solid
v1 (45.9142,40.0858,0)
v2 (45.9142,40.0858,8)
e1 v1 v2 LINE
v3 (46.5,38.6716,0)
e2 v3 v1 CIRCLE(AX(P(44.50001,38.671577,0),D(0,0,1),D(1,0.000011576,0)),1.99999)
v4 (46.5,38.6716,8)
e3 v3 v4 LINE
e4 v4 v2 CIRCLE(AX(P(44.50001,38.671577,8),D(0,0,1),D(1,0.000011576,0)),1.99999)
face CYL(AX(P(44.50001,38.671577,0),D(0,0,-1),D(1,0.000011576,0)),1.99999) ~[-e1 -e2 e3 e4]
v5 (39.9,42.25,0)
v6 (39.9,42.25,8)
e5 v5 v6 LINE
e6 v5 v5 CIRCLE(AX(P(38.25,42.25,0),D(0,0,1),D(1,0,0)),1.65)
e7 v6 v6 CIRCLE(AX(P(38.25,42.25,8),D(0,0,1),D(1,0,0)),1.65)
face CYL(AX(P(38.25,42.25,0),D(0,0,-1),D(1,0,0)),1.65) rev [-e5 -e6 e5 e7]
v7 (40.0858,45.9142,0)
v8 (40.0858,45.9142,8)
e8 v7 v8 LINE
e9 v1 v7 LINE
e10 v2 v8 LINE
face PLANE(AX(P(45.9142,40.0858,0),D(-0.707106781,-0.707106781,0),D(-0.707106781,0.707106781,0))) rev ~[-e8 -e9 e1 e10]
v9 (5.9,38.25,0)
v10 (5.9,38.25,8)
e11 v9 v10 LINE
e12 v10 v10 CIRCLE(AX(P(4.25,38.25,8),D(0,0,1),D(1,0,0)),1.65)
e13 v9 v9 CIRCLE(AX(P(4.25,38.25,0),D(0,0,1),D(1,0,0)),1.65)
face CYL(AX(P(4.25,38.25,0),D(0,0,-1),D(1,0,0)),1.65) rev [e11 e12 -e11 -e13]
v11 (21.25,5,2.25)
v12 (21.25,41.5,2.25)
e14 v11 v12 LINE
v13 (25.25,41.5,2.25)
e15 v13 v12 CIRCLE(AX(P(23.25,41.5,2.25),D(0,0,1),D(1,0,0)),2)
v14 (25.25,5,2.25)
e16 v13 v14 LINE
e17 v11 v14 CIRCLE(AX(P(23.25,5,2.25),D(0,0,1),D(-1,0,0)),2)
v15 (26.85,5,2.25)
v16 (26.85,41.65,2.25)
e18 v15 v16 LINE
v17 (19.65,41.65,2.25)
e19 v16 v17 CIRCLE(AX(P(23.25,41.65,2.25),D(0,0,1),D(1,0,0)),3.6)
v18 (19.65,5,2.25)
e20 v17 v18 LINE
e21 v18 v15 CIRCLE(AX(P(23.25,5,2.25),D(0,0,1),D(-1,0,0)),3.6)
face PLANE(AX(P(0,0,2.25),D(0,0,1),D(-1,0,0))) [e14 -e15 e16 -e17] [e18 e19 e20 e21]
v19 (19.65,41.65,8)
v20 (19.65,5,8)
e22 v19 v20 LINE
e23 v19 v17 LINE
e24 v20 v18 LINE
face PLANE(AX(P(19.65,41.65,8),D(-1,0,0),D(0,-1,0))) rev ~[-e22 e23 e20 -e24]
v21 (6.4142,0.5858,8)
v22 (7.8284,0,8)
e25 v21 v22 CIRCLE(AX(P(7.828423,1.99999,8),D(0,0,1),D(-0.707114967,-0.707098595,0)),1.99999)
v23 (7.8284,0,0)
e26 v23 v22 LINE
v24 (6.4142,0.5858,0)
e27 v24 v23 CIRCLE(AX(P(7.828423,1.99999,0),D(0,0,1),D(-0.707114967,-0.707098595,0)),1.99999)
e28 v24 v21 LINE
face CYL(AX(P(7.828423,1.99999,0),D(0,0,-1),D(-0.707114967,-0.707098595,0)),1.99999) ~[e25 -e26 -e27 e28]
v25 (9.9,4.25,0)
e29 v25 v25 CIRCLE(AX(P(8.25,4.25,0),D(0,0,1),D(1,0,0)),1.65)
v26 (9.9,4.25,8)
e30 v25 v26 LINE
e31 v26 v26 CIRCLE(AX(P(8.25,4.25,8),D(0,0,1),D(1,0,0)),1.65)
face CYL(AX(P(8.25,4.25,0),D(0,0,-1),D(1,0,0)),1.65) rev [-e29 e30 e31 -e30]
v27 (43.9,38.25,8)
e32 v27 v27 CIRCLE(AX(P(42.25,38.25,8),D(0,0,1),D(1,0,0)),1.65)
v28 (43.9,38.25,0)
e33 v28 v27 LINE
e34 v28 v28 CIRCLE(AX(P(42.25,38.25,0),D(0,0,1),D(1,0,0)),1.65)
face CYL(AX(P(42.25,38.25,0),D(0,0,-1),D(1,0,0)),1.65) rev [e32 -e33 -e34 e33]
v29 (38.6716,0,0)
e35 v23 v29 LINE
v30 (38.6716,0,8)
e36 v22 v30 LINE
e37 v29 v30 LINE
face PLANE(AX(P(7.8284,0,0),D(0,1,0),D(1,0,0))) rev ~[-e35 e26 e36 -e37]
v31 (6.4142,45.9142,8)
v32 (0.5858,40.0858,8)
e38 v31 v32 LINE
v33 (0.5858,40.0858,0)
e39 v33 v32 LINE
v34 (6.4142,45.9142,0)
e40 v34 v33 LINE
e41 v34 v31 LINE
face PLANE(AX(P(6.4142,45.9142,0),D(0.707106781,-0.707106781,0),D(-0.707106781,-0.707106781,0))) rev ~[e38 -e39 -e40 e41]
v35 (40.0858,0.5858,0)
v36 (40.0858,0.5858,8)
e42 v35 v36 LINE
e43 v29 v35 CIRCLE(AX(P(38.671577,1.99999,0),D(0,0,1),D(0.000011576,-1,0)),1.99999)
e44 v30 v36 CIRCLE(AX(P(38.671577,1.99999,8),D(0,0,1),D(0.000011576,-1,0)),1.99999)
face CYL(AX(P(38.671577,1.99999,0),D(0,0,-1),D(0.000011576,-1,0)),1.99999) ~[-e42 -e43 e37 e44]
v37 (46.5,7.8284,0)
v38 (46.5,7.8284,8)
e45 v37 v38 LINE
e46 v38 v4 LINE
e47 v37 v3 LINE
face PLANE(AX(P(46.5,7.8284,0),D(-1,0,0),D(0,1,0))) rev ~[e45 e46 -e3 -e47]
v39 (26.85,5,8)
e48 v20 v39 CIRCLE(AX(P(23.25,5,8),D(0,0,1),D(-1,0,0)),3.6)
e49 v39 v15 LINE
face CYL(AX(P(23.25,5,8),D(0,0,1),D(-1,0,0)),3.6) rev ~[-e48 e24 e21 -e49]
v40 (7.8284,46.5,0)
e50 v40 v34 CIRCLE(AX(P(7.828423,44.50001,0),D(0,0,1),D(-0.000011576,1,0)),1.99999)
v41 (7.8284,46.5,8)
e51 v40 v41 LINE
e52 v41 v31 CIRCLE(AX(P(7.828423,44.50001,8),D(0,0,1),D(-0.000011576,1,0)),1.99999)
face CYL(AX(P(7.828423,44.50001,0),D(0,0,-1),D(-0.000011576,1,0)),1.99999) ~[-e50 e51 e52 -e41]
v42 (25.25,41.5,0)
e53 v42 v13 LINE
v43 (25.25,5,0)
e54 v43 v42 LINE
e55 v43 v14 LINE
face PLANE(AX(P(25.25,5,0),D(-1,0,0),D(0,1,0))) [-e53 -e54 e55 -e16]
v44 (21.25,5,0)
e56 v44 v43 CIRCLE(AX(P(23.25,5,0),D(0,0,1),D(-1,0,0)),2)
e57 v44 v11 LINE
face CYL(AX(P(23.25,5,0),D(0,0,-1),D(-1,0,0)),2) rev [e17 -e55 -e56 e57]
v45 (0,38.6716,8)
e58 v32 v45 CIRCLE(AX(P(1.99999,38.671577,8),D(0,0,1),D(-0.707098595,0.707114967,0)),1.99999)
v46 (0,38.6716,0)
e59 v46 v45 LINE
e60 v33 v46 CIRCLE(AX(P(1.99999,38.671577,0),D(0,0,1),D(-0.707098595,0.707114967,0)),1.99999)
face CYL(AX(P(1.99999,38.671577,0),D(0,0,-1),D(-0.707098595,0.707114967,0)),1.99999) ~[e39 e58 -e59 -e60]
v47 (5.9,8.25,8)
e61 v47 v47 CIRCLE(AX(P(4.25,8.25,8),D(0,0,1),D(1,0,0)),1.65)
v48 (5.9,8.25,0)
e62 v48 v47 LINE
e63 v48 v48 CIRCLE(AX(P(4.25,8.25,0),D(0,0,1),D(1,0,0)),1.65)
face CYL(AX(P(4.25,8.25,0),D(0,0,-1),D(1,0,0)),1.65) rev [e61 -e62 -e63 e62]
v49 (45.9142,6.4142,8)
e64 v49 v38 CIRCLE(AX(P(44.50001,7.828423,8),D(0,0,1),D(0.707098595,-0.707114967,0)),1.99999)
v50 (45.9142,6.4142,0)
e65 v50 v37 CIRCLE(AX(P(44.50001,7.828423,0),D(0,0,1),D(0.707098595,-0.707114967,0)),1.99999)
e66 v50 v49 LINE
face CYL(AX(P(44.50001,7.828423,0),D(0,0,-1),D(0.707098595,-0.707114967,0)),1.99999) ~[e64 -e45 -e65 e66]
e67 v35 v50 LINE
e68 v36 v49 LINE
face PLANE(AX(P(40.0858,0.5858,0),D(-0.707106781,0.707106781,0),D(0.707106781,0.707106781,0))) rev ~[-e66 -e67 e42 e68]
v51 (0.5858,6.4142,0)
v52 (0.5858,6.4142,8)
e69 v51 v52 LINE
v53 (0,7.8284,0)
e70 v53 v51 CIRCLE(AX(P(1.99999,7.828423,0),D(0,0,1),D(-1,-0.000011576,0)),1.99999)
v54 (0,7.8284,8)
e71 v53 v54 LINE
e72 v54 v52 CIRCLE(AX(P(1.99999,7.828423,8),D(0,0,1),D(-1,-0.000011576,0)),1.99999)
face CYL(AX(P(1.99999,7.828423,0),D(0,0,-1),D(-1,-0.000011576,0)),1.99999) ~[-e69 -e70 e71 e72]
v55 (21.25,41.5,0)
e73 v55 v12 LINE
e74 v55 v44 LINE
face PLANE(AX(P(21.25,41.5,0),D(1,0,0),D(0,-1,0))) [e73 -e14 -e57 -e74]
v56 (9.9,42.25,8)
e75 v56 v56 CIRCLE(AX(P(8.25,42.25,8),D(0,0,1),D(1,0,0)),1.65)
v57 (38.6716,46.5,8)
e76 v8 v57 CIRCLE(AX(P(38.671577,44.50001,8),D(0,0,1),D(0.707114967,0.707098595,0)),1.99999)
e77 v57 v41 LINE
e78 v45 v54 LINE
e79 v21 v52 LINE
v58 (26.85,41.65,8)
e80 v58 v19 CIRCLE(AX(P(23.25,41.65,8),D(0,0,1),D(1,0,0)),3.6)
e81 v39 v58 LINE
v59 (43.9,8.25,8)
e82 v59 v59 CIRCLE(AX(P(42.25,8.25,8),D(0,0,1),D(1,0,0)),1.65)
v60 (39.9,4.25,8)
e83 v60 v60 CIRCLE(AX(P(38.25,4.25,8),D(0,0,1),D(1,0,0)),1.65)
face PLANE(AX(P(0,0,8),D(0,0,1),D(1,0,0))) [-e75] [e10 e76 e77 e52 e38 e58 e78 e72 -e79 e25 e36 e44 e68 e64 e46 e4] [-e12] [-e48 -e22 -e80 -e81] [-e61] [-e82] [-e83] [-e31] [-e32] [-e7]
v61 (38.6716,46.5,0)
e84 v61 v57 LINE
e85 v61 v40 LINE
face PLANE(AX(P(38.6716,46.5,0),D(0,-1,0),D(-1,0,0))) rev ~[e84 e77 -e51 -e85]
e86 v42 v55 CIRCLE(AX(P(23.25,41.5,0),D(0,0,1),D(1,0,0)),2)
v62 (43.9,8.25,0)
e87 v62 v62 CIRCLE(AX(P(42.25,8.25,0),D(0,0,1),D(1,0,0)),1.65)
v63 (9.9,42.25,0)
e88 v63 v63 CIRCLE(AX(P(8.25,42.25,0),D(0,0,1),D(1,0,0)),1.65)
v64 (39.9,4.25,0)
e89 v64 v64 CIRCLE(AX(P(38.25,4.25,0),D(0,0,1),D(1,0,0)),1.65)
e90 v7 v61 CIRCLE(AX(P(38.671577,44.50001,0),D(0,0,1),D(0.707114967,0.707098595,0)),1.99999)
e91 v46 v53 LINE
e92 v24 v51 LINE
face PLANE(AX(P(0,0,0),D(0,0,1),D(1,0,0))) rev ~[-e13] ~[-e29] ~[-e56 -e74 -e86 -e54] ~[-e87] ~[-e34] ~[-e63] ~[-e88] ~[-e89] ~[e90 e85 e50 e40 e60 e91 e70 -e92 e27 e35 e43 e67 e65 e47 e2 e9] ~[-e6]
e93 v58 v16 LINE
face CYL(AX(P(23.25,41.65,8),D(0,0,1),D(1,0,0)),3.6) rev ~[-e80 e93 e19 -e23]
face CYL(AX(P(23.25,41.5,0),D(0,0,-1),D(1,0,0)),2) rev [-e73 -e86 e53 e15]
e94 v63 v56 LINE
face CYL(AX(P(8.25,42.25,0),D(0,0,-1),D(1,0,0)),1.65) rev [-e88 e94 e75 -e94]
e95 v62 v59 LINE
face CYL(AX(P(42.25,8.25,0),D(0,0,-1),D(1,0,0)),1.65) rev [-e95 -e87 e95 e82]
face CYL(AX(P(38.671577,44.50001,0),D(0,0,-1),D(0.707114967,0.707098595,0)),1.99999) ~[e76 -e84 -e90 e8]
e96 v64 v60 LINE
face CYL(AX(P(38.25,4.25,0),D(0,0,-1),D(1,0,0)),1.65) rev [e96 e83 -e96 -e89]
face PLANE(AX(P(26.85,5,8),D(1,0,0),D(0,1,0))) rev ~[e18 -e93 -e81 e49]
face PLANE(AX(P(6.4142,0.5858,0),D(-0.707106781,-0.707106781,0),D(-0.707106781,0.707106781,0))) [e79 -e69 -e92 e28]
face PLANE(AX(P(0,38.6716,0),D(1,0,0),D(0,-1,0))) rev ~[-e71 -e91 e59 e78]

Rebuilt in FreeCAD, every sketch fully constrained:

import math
import FreeCAD as App
import Part
import Sketcher
from FreeCAD import Vector

doc = App.newDocument("Part")
body = doc.addObject("PartDesign::Body", "Body")

sketch1 = body.newObject("Sketcher::SketchObject", "Sketch")
sketch1.AttachmentSupport = (doc.getObject("XY_Plane"), [""])
sketch1.MapMode = "FlatFace"
sketch1.addGeometry(Part.ArcOfCircle(Part.Circle(Vector(7.8, 2, 0), Vector(0, 0, 1), 2), math.radians(-135), math.radians(-90)), False)
sketch1.addGeometry(Part.LineSegment(Vector(7.8, 0, 0), Vector(38.7, 0, 0)), False)
sketch1.addGeometry(Part.ArcOfCircle(Part.Circle(Vector(38.7, 2, 0), Vector(0, 0, 1), 2), math.radians(-90), math.radians(-45)), False)
sketch1.addGeometry(Part.LineSegment(Vector(40.1, 0.6, 0), Vector(45.9, 6.4, 0)), False)
sketch1.addGeometry(Part.ArcOfCircle(Part.Circle(Vector(44.5, 7.8, 0), Vector(0, 0, 1), 2), math.radians(-45), math.radians(0)), False)
sketch1.addGeometry(Part.LineSegment(Vector(46.5, 7.8, 0), Vector(46.5, 38.7, 0)), False)
sketch1.addGeometry(Part.ArcOfCircle(Part.Circle(Vector(44.5, 38.7, 0), Vector(0, 0, 1), 2), math.radians(0), math.radians(45)), False)
sketch1.addGeometry(Part.LineSegment(Vector(45.9, 40.1, 0), Vector(40.1, 45.9, 0)), False)
sketch1.addGeometry(Part.ArcOfCircle(Part.Circle(Vector(38.7, 44.5, 0), Vector(0, 0, 1), 2), math.radians(45), math.radians(90)), False)
sketch1.addGeometry(Part.LineSegment(Vector(38.7, 46.5, 0), Vector(7.8, 46.5, 0)), False)
sketch1.addGeometry(Part.ArcOfCircle(Part.Circle(Vector(7.8, 44.5, 0), Vector(0, 0, 1), 2), math.radians(90), math.radians(135)), False)
sketch1.addGeometry(Part.LineSegment(Vector(6.4, 45.9, 0), Vector(0.6, 40.1, 0)), False)
sketch1.addGeometry(Part.ArcOfCircle(Part.Circle(Vector(2, 38.7, 0), Vector(0, 0, 1), 2), math.radians(135), math.radians(180)), False)
sketch1.addGeometry(Part.LineSegment(Vector(0, 38.7, 0), Vector(0, 7.8, 0)), False)
sketch1.addGeometry(Part.ArcOfCircle(Part.Circle(Vector(2, 7.8, 0), Vector(0, 0, 1), 2), math.radians(180), math.radians(225)), False)
sketch1.addGeometry(Part.LineSegment(Vector(0.6, 6.4, 0), Vector(6.4, 0.6, 0)), False)
sketch1.addGeometry(Part.Circle(Vector(8.2, 4.2, 0), Vector(0, 0, 1), 1.6), False)
sketch1.addGeometry(Part.Circle(Vector(4.2, 8.2, 0), Vector(0, 0, 1), 1.6), False)
sketch1.addGeometry(Part.Circle(Vector(38.2, 4.2, 0), Vector(0, 0, 1), 1.6), False)
sketch1.addGeometry(Part.Circle(Vector(42.2, 8.2, 0), Vector(0, 0, 1), 1.6), False)
sketch1.addGeometry(Part.Circle(Vector(4.2, 38.2, 0), Vector(0, 0, 1), 1.6), False)
sketch1.addGeometry(Part.Circle(Vector(8.2, 42.2, 0), Vector(0, 0, 1), 1.6), False)
sketch1.addGeometry(Part.Circle(Vector(42.2, 38.2, 0), Vector(0, 0, 1), 1.6), False)
sketch1.addGeometry(Part.Circle(Vector(38.2, 42.2, 0), Vector(0, 0, 1), 1.6), False)
sketch1.addGeometry(Part.LineSegment(Vector(21.2, 5, 0), Vector(21.2, 41.5, 0)), False)
sketch1.addGeometry(Part.ArcOfCircle(Part.Circle(Vector(23.2, 41.5, 0), Vector(0, 0, 1), 2), math.radians(0), math.radians(180)), False)
sketch1.addGeometry(Part.LineSegment(Vector(25.2, 41.5, 0), Vector(25.2, 5, 0)), False)
sketch1.addGeometry(Part.ArcOfCircle(Part.Circle(Vector(23.2, 5, 0), Vector(0, 0, 1), 2), math.radians(180), math.radians(360)), False)
sketch1.addConstraint(Sketcher.Constraint("Tangent", 0, 2, 1, 1))
sketch1.addConstraint(Sketcher.Constraint("Tangent", 1, 2, 2, 1))
sketch1.addConstraint(Sketcher.Constraint("Tangent", 2, 2, 3, 1))
sketch1.addConstraint(Sketcher.Constraint("Tangent", 3, 2, 4, 1))
sketch1.addConstraint(Sketcher.Constraint("Tangent", 4, 2, 5, 1))
sketch1.addConstraint(Sketcher.Constraint("Tangent", 5, 2, 6, 1))
sketch1.addConstraint(Sketcher.Constraint("Tangent", 6, 2, 7, 1))
sketch1.addConstraint(Sketcher.Constraint("Tangent", 7, 2, 8, 1))
sketch1.addConstraint(Sketcher.Constraint("Tangent", 8, 2, 9, 1))
sketch1.addConstraint(Sketcher.Constraint("Tangent", 9, 2, 10, 1))
sketch1.addConstraint(Sketcher.Constraint("Tangent", 10, 2, 11, 1))
sketch1.addConstraint(Sketcher.Constraint("Tangent", 11, 2, 12, 1))
sketch1.addConstraint(Sketcher.Constraint("Tangent", 12, 2, 13, 1))
sketch1.addConstraint(Sketcher.Constraint("Tangent", 13, 2, 14, 1))
sketch1.addConstraint(Sketcher.Constraint("Tangent", 14, 2, 15, 1))
sketch1.addConstraint(Sketcher.Constraint("Tangent", 15, 2, 0, 1))
sketch1.addConstraint(Sketcher.Constraint("Tangent", 24, 2, 25, 2))
sketch1.addConstraint(Sketcher.Constraint("Tangent", 25, 1, 26, 1))
sketch1.addConstraint(Sketcher.Constraint("Tangent", 26, 2, 27, 2))
sketch1.addConstraint(Sketcher.Constraint("Tangent", 27, 1, 24, 1))
sketch1.addConstraint(Sketcher.Constraint("Horizontal", 1))
sketch1.addConstraint(Sketcher.Constraint("Vertical", 5))
sketch1.addConstraint(Sketcher.Constraint("Horizontal", 9))
sketch1.addConstraint(Sketcher.Constraint("Vertical", 13))
sketch1.addConstraint(Sketcher.Constraint("Vertical", 24))
sketch1.addConstraint(Sketcher.Constraint("Vertical", 26))
sketch1.addConstraint(Sketcher.Constraint("Equal", 0, 2))
sketch1.addConstraint(Sketcher.Constraint("Equal", 2, 4))
sketch1.addConstraint(Sketcher.Constraint("Equal", 4, 6))
sketch1.addConstraint(Sketcher.Constraint("Equal", 6, 8))
sketch1.addConstraint(Sketcher.Constraint("Equal", 8, 10))
sketch1.addConstraint(Sketcher.Constraint("Equal", 10, 12))
sketch1.addConstraint(Sketcher.Constraint("Equal", 12, 14))
sketch1.addConstraint(Sketcher.Constraint("Equal", 16, 17))
sketch1.addConstraint(Sketcher.Constraint("Equal", 17, 18))
sketch1.addConstraint(Sketcher.Constraint("Equal", 18, 19))
sketch1.addConstraint(Sketcher.Constraint("Equal", 19, 20))
sketch1.addConstraint(Sketcher.Constraint("Equal", 20, 21))
sketch1.addConstraint(Sketcher.Constraint("Equal", 21, 22))
sketch1.addConstraint(Sketcher.Constraint("Equal", 22, 23))
sketch1.addConstraint(Sketcher.Constraint("Equal", 14, 25))
sketch1.addConstraint(Sketcher.Constraint("PointOnObject", 0, 2, -1))
sketch1.addConstraint(Sketcher.Constraint("PointOnObject", 12, 2, -2))
sketch1.addConstraint(Sketcher.Constraint("Perpendicular", 3, 7))
sketch1.addConstraint(Sketcher.Constraint("Perpendicular", 7, 11))
sketch1.addConstraint(Sketcher.Constraint("Perpendicular", 11, 15))
sketch1.addConstraint(Sketcher.Constraint("Horizontal", 6, 3, 12, 3))
sketch1.addConstraint(Sketcher.Constraint("Horizontal", 4, 3, 14, 3))
sketch1.addConstraint(Sketcher.Constraint("Horizontal", 16, 3, 18, 3))
sketch1.addConstraint(Sketcher.Constraint("Horizontal", 17, 3, 19, 3))
sketch1.addConstraint(Sketcher.Constraint("Horizontal", 20, 3, 22, 3))
sketch1.addConstraint(Sketcher.Constraint("Horizontal", 21, 3, 23, 3))
sketch1.addConstraint(Sketcher.Constraint("Horizontal", 7, 2, 10, 2))
sketch1.addConstraint(Sketcher.Constraint("Vertical", 2, 3, 8, 3))
sketch1.addConstraint(Sketcher.Constraint("Vertical", 17, 3, 20, 3))
sketch1.addConstraint(Sketcher.Constraint("Vertical", 16, 3, 21, 3))
sketch1.addConstraint(Sketcher.Constraint("Vertical", 19, 3, 22, 3))
sketch1.addConstraint(Sketcher.Constraint("Vertical", 18, 3, 23, 3))
sketch1.addConstraint(Sketcher.Constraint("Equal", 9, 5))
sketch1.addConstraint(Sketcher.Constraint("Radius", 0, 2.0))
sketch1.addConstraint(Sketcher.Constraint("Diameter", 16, 3.3))
sketch1.addConstraint(Sketcher.Constraint("DistanceX", 17, 3, 16, 3, 4.0))
sketch1.addConstraint(Sketcher.Constraint("DistanceY", 16, 3, 17, 3, 4.0))
sketch1.addConstraint(Sketcher.Constraint("DistanceX", 16, 3, 18, 3, 30.0))
sketch1.addConstraint(Sketcher.Constraint("DistanceX", 18, 3, 19, 3, 4.0))
sketch1.addConstraint(Sketcher.Constraint("DistanceY", 17, 3, 20, 3, 30.0))
sketch1.addConstraint(Sketcher.Constraint("DistanceY", 20, 3, 21, 3, 4.0))
sketch1.addConstraint(Sketcher.Constraint("DistanceX", -1, 1, 4, 2, 46.5))
sketch1.addConstraint(Sketcher.Constraint("DistanceX", -1, 1, 16, 3, 8.25))
sketch1.addConstraint(Sketcher.Constraint("DistanceY", -1, 1, 16, 3, 4.25))
sketch1.addConstraint(Sketcher.Constraint("DistanceX", -1, 1, 25, 3, 23.25))
sketch1.addConstraint(Sketcher.Constraint("DistanceY", 24, 1, 24, 2, 36.5))
sketch1.addConstraint(Sketcher.Constraint("DistanceY", -1, 1, 27, 3, 5.0))
sketch1.addConstraint(Sketcher.Constraint("DistanceX", 1, 1, 1, 2, 30.8432))
pad1 = body.newObject("PartDesign::Pad", "Pad")
pad1.Profile = sketch1
pad1.Length = 8

sketch2 = body.newObject("Sketcher::SketchObject", "Sketch001")
sketch2.AttachmentSupport = (doc.getObject("XY_Plane"), [""])
sketch2.MapMode = "FlatFace"
sketch2.AttachmentOffset = App.Placement(Vector(0, 0, 8), App.Rotation())
sketch2.addGeometry(Part.ArcOfCircle(Part.Circle(Vector(23.2, 41.6, 0), Vector(0, 0, 1), 3.6), math.radians(0), math.radians(180)), False)
sketch2.addGeometry(Part.LineSegment(Vector(19.6, 41.6, 0), Vector(19.6, 5, 0)), False)
sketch2.addGeometry(Part.ArcOfCircle(Part.Circle(Vector(23.2, 5, 0), Vector(0, 0, 1), 3.6), math.radians(180), math.radians(360)), False)
sketch2.addGeometry(Part.LineSegment(Vector(26.9, 5, 0), Vector(26.9, 41.6, 0)), False)
sketch2.addGeometry(Part.ArcOfCircle(Part.Circle(Vector(23.2, 41.5, 0), Vector(0, 0, 1), 2), math.radians(0), math.radians(180)), False)
sketch2.addGeometry(Part.LineSegment(Vector(25.2, 41.5, 0), Vector(25.2, 5, 0)), False)
sketch2.addGeometry(Part.ArcOfCircle(Part.Circle(Vector(23.2, 5, 0), Vector(0, 0, 1), 2), math.radians(180), math.radians(360)), False)
sketch2.addGeometry(Part.LineSegment(Vector(21.2, 5, 0), Vector(21.2, 41.5, 0)), False)
sketch2.addConstraint(Sketcher.Constraint("Tangent", 0, 2, 1, 1))
sketch2.addConstraint(Sketcher.Constraint("Tangent", 1, 2, 2, 1))
sketch2.addConstraint(Sketcher.Constraint("Tangent", 2, 2, 3, 1))
sketch2.addConstraint(Sketcher.Constraint("Tangent", 3, 2, 0, 1))
sketch2.addConstraint(Sketcher.Constraint("Tangent", 4, 1, 5, 1))
sketch2.addConstraint(Sketcher.Constraint("Tangent", 5, 2, 6, 2))
sketch2.addConstraint(Sketcher.Constraint("Tangent", 6, 1, 7, 1))
sketch2.addConstraint(Sketcher.Constraint("Tangent", 7, 2, 4, 2))
sketch2.addConstraint(Sketcher.Constraint("Vertical", 1))
sketch2.addConstraint(Sketcher.Constraint("Vertical", 3))
sketch2.addConstraint(Sketcher.Constraint("Vertical", 5))
sketch2.addConstraint(Sketcher.Constraint("Vertical", 7))
sketch2.addConstraint(Sketcher.Constraint("Coincident", 6, 3, 2, 3))
sketch2.addConstraint(Sketcher.Constraint("Radius", 0, 3.6))
sketch2.addConstraint(Sketcher.Constraint("Radius", 4, 2.0))
sketch2.addConstraint(Sketcher.Constraint("DistanceX", -1, 1, 0, 3, 23.25))
sketch2.addConstraint(Sketcher.Constraint("DistanceY", 5, 2, 5, 1, 36.5))
sketch2.addConstraint(Sketcher.Constraint("DistanceY", -1, 1, 2, 3, 5.0))
sketch2.addConstraint(Sketcher.Constraint("DistanceY", 1, 2, 1, 1, 36.65))
pocket1 = body.newObject("PartDesign::Pocket", "Pocket")
pocket1.Profile = sketch2
pocket1.Length = 5.75

doc.recompute()
